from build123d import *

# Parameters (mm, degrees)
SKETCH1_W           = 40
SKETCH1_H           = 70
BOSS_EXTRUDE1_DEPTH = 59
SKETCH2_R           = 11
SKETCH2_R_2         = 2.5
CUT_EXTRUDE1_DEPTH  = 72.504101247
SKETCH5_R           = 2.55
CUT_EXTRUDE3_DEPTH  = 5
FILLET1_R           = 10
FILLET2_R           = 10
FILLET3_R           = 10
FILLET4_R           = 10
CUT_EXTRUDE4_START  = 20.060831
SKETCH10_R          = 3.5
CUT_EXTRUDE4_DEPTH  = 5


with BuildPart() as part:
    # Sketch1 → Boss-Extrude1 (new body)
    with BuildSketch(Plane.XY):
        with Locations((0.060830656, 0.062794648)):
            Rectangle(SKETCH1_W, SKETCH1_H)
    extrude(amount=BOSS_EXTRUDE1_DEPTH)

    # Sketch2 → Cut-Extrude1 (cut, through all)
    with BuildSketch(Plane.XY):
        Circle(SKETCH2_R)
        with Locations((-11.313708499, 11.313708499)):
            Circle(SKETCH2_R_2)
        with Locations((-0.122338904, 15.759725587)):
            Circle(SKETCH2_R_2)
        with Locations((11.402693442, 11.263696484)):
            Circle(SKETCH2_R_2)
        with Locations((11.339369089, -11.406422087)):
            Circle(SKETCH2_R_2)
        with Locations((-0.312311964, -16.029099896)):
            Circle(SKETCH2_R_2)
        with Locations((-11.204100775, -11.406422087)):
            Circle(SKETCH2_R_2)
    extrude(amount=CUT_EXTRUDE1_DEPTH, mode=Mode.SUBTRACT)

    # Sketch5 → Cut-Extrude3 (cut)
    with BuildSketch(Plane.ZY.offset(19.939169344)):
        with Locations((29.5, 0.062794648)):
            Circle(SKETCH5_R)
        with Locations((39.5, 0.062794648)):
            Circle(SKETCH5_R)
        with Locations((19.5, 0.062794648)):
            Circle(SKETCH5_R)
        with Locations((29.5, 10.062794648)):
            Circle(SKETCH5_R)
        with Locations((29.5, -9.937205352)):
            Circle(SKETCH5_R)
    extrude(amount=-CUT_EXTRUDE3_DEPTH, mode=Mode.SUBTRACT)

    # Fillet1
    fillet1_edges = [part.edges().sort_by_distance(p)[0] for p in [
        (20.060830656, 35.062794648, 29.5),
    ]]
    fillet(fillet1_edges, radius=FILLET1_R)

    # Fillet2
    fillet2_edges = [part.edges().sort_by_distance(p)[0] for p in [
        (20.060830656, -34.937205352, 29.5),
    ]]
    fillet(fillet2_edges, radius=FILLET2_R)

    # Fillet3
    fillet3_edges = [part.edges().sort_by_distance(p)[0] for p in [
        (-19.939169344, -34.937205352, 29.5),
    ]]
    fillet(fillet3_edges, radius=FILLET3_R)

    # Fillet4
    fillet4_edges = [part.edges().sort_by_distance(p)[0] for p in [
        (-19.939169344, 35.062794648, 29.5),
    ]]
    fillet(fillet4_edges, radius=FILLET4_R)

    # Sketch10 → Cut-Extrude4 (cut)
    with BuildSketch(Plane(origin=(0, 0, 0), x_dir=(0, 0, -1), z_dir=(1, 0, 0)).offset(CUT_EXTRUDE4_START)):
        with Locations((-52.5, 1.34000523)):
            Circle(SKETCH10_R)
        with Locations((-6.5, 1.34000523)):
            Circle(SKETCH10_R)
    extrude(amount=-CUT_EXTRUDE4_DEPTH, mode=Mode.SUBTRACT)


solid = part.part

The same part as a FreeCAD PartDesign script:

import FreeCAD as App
import Part
import Sketcher

V = App.Vector


def edges_at(feature, points):
    """Names of the edges that pass closest to the given points."""
    edges = feature.Shape.Edges
    near = lambda p: min(range(len(edges)), key=lambda i: edges[i].distToShape(Part.Vertex(*p))[0])
    return sorted({f"Edge{near(p) + 1}" for p in points})

doc = App.newDocument("Part")
body = doc.addObject("PartDesign::Body", "Body")

sketch1 = body.newObject("Sketcher::SketchObject", "Sketch")
sketch1.AttachmentSupport = (doc.getObject("XY_Plane"), [""])
sketch1.MapMode = "FlatFace"
sketch1.addGeometry(Part.LineSegment(V(-20, 35, 0), V(-20, -35, 0)), False)
sketch1.addGeometry(Part.LineSegment(V(-20, -35, 0), V(20, -35, 0)), False)
sketch1.addGeometry(Part.LineSegment(V(20, -35, 0), V(20, 35, 0)), False)
sketch1.addGeometry(Part.LineSegment(V(20, 35, 0), V(-20, 35, 0)), False)
sketch1.addConstraint(Sketcher.Constraint("Coincident", 0, 2, 1, 1))
sketch1.addConstraint(Sketcher.Constraint("Coincident", 1, 2, 2, 1))
sketch1.addConstraint(Sketcher.Constraint("Coincident", 2, 2, 3, 1))
sketch1.addConstraint(Sketcher.Constraint("Coincident", 3, 2, 0, 1))
sketch1.addConstraint(Sketcher.Constraint("Vertical", 0))
sketch1.addConstraint(Sketcher.Constraint("Horizontal", 1))
sketch1.addConstraint(Sketcher.Constraint("Vertical", 2))
sketch1.addConstraint(Sketcher.Constraint("Horizontal", 3))
sketch1.addConstraint(Sketcher.Constraint("DistanceX", 1, 1, 1, 2, 40.0))
sketch1.addConstraint(Sketcher.Constraint("DistanceY", 0, 2, 0, 1, 70.0))
sketch1.addConstraint(Sketcher.Constraint("DistanceX", 0, 2, -1, 1, 19.939169))
sketch1.addConstraint(Sketcher.Constraint("DistanceY", 0, 2, -1, 1, 34.937205))
pad1 = body.newObject("PartDesign::Pad", "Pad")
pad1.Profile = sketch1
pad1.Length = 59

sketch2 = body.newObject("Sketcher::SketchObject", "Sketch001")
sketch2.AttachmentSupport = (doc.getObject("XY_Plane"), [""])
sketch2.MapMode = "FlatFace"
sketch2.addGeometry(Part.Circle(V(0, 0, 0), V(0, 0, 1), 11), False)
sketch2.addGeometry(Part.Circle(V(-11.3, 11.3, 0), V(0, 0, 1), 2.5), False)
sketch2.addGeometry(Part.Circle(V(-0.1, 15.8, 0), V(0, 0, 1), 2.5), False)
sketch2.addGeometry(Part.Circle(V(11.4, 11.3, 0), V(0, 0, 1), 2.5), False)
sketch2.addGeometry(Part.Circle(V(11.3, -11.4, 0), V(0, 0, 1), 2.5), False)
sketch2.addGeometry(Part.Circle(V(-0.3, -16, 0), V(0, 0, 1), 2.5), False)
sketch2.addGeometry(Part.Circle(V(-11.2, -11.4, 0), V(0, 0, 1), 2.5), False)
sketch2.addConstraint(Sketcher.Constraint("Coincident", 0, 3, -1, 1))
sketch2.addConstraint(Sketcher.Constraint("Equal", 1, 2))
sketch2.addConstraint(Sketcher.Constraint("Equal", 2, 3))
sketch2.addConstraint(Sketcher.Constraint("Equal", 3, 4))
sketch2.addConstraint(Sketcher.Constraint("Equal", 4, 5))
sketch2.addConstraint(Sketcher.Constraint("Equal", 5, 6))
sketch2.addConstraint(Sketcher.Constraint("Horizontal", 4, 3, 6, 3))
sketch2.addConstraint(Sketcher.Constraint("Diameter", 0, 22.0))
sketch2.addConstraint(Sketcher.Constraint("Diameter", 1, 5.0))
sketch2.addConstraint(Sketcher.Constraint("DistanceY", 5, 3, -1, 1, 16.0291))
sketch2.addConstraint(Sketcher.Constraint("DistanceX", 6, 3, -1, 1, 11.204101))
sketch2.addConstraint(Sketcher.Constraint("DistanceX", 1, 3, 3, 3, 22.716402))
sketch2.addConstraint(Sketcher.Constraint("DistanceX", 1, 3, -1, 1, 11.313708))
sketch2.addConstraint(Sketcher.Constraint("DistanceY", -1, 1, 1, 3, 11.313708))
sketch2.addConstraint(Sketcher.Constraint("DistanceX", 2, 3, -1, 1, 0.122339))
sketch2.addConstraint(Sketcher.Constraint("DistanceX", -1, 1, 4, 3, 11.339369))
sketch2.addConstraint(Sketcher.Constraint("DistanceX", 5, 3, -1, 1, 0.312312))
sketch2.addConstraint(Sketcher.Constraint("DistanceY", 3, 3, 2, 3, 4.496029))
sketch2.addConstraint(Sketcher.Constraint("DistanceY", 4, 3, 3, 3, 22.670119))
sketch2.addConstraint(Sketcher.Constraint("DistanceY", 4, 3, 1, 3, 22.720131))
pocket1 = body.newObject("PartDesign::Pocket", "Pocket")
pocket1.Profile = sketch2
pocket1.Type = "ThroughAll"
pocket1.Reversed = True

sketch3 = body.newObject("Sketcher::SketchObject", "Sketch002")
sketch3.AttachmentSupport = (doc.getObject("YZ_Plane"), [""])
sketch3.MapMode = "FlatFace"
sketch3.AttachmentOffset = App.Placement(V(0, 0, -19.939169), App.Rotation())
sketch3.addGeometry(Part.Circle(V(0.1, 29.5, 0), V(0, 0, 1), 2.5), False)
sketch3.addGeometry(Part.Circle(V(0.1, 39.5, 0), V(0, 0, 1), 2.5), False)
sketch3.addGeometry(Part.Circle(V(0.1, 19.5, 0), V(0, 0, 1), 2.5), False)
sketch3.addGeometry(Part.Circle(V(10.1, 29.5, 0), V(0, 0, 1), 2.5), False)
sketch3.addGeometry(Part.Circle(V(-9.9, 29.5, 0), V(0, 0, 1), 2.5), False)
sketch3.addConstraint(Sketcher.Constraint("Equal", 0, 1))
sketch3.addConstraint(Sketcher.Constraint("Equal", 1, 2))
sketch3.addConstraint(Sketcher.Constraint("Equal", 2, 3))
sketch3.addConstraint(Sketcher.Constraint("Equal", 3, 4))
sketch3.addConstraint(Sketcher.Constraint("Horizontal", 0, 3, 3, 3))
sketch3.addConstraint(Sketcher.Constraint("Horizontal", 3, 3, 4, 3))
sketch3.addConstraint(Sketcher.Constraint("Vertical", 0, 3, 1, 3))
sketch3.addConstraint(Sketcher.Constraint("Vertical", 1, 3, 2, 3))
sketch3.addConstraint(Sketcher.Constraint("Diameter", 0, 5.1))
sketch3.addConstraint(Sketcher.Constraint("DistanceY", 0, 3, 1, 3, 10.0))
sketch3.addConstraint(Sketcher.Constraint("DistanceY", 2, 3, 0, 3, 10.0))
sketch3.addConstraint(Sketcher.Constraint("DistanceX", 0, 3, 3, 3, 10.0))
sketch3.addConstraint(Sketcher.Constraint("DistanceX", 4, 3, 0, 3, 10.0))
sketch3.addConstraint(Sketcher.Constraint("DistanceY", -1, 1, 0, 3, 29.5))
sketch3.addConstraint(Sketcher.Constraint("DistanceX", -1, 1, 0, 3, 0.062795))
pocket2 = body.newObject("PartDesign::Pocket", "Pocket001")
pocket2.Profile = sketch3
pocket2.Length = 5
pocket2.Reversed = True
doc.recompute()

fillet = body.newObject("PartDesign::Fillet", "Fillet")
fillet.Base = (pocket2, edges_at(pocket2, [(20.061, 35.063, 29.5)]))
fillet.Radius = 10
doc.recompute()

fillet2 = body.newObject("PartDesign::Fillet", "Fillet001")
fillet2.Base = (fillet, edges_at(fillet, [(20.061, -34.937, 29.5)]))
fillet2.Radius = 10
doc.recompute()

fillet3 = body.newObject("PartDesign::Fillet", "Fillet002")
fillet3.Base = (fillet2, edges_at(fillet2, [(-19.939, -34.937, 29.5)]))
fillet3.Radius = 10
doc.recompute()

fillet4 = body.newObject("PartDesign::Fillet", "Fillet003")
fillet4.Base = (fillet3, edges_at(fillet3, [(-19.939, 35.063, 29.5)]))
fillet4.Radius = 10

sketch4 = body.newObject("Sketcher::SketchObject", "Sketch003")
sketch4.AttachmentSupport = (doc.getObject("YZ_Plane"), [""])
sketch4.MapMode = "FlatFace"
sketch4.AttachmentOffset = App.Placement(V(0, 0, 20.060831), App.Rotation())
sketch4.addGeometry(Part.Circle(V(1.3, 52.5, 0), V(0, 0, 1), 3.5), False)
sketch4.addGeometry(Part.Circle(V(1.3, 6.5, 0), V(0, 0, 1), 3.5), False)
sketch4.addConstraint(Sketcher.Constraint("Equal", 0, 1))
sketch4.addConstraint(Sketcher.Constraint("Vertical", 0, 3, 1, 3))
sketch4.addConstraint(Sketcher.Constraint("Diameter", 0, 7.0))
sketch4.addConstraint(Sketcher.Constraint("DistanceY", 1, 3, 0, 3, 46.0))
sketch4.addConstraint(Sketcher.Constraint("DistanceY", -1, 1, 0, 3, 52.5))
sketch4.addConstraint(Sketcher.Constraint("DistanceX", -1, 1, 0, 3, 1.340005))
pocket3 = body.newObject("PartDesign::Pocket", "Pocket002")
pocket3.Profile = sketch4
pocket3.Length = 5

doc.recompute()
